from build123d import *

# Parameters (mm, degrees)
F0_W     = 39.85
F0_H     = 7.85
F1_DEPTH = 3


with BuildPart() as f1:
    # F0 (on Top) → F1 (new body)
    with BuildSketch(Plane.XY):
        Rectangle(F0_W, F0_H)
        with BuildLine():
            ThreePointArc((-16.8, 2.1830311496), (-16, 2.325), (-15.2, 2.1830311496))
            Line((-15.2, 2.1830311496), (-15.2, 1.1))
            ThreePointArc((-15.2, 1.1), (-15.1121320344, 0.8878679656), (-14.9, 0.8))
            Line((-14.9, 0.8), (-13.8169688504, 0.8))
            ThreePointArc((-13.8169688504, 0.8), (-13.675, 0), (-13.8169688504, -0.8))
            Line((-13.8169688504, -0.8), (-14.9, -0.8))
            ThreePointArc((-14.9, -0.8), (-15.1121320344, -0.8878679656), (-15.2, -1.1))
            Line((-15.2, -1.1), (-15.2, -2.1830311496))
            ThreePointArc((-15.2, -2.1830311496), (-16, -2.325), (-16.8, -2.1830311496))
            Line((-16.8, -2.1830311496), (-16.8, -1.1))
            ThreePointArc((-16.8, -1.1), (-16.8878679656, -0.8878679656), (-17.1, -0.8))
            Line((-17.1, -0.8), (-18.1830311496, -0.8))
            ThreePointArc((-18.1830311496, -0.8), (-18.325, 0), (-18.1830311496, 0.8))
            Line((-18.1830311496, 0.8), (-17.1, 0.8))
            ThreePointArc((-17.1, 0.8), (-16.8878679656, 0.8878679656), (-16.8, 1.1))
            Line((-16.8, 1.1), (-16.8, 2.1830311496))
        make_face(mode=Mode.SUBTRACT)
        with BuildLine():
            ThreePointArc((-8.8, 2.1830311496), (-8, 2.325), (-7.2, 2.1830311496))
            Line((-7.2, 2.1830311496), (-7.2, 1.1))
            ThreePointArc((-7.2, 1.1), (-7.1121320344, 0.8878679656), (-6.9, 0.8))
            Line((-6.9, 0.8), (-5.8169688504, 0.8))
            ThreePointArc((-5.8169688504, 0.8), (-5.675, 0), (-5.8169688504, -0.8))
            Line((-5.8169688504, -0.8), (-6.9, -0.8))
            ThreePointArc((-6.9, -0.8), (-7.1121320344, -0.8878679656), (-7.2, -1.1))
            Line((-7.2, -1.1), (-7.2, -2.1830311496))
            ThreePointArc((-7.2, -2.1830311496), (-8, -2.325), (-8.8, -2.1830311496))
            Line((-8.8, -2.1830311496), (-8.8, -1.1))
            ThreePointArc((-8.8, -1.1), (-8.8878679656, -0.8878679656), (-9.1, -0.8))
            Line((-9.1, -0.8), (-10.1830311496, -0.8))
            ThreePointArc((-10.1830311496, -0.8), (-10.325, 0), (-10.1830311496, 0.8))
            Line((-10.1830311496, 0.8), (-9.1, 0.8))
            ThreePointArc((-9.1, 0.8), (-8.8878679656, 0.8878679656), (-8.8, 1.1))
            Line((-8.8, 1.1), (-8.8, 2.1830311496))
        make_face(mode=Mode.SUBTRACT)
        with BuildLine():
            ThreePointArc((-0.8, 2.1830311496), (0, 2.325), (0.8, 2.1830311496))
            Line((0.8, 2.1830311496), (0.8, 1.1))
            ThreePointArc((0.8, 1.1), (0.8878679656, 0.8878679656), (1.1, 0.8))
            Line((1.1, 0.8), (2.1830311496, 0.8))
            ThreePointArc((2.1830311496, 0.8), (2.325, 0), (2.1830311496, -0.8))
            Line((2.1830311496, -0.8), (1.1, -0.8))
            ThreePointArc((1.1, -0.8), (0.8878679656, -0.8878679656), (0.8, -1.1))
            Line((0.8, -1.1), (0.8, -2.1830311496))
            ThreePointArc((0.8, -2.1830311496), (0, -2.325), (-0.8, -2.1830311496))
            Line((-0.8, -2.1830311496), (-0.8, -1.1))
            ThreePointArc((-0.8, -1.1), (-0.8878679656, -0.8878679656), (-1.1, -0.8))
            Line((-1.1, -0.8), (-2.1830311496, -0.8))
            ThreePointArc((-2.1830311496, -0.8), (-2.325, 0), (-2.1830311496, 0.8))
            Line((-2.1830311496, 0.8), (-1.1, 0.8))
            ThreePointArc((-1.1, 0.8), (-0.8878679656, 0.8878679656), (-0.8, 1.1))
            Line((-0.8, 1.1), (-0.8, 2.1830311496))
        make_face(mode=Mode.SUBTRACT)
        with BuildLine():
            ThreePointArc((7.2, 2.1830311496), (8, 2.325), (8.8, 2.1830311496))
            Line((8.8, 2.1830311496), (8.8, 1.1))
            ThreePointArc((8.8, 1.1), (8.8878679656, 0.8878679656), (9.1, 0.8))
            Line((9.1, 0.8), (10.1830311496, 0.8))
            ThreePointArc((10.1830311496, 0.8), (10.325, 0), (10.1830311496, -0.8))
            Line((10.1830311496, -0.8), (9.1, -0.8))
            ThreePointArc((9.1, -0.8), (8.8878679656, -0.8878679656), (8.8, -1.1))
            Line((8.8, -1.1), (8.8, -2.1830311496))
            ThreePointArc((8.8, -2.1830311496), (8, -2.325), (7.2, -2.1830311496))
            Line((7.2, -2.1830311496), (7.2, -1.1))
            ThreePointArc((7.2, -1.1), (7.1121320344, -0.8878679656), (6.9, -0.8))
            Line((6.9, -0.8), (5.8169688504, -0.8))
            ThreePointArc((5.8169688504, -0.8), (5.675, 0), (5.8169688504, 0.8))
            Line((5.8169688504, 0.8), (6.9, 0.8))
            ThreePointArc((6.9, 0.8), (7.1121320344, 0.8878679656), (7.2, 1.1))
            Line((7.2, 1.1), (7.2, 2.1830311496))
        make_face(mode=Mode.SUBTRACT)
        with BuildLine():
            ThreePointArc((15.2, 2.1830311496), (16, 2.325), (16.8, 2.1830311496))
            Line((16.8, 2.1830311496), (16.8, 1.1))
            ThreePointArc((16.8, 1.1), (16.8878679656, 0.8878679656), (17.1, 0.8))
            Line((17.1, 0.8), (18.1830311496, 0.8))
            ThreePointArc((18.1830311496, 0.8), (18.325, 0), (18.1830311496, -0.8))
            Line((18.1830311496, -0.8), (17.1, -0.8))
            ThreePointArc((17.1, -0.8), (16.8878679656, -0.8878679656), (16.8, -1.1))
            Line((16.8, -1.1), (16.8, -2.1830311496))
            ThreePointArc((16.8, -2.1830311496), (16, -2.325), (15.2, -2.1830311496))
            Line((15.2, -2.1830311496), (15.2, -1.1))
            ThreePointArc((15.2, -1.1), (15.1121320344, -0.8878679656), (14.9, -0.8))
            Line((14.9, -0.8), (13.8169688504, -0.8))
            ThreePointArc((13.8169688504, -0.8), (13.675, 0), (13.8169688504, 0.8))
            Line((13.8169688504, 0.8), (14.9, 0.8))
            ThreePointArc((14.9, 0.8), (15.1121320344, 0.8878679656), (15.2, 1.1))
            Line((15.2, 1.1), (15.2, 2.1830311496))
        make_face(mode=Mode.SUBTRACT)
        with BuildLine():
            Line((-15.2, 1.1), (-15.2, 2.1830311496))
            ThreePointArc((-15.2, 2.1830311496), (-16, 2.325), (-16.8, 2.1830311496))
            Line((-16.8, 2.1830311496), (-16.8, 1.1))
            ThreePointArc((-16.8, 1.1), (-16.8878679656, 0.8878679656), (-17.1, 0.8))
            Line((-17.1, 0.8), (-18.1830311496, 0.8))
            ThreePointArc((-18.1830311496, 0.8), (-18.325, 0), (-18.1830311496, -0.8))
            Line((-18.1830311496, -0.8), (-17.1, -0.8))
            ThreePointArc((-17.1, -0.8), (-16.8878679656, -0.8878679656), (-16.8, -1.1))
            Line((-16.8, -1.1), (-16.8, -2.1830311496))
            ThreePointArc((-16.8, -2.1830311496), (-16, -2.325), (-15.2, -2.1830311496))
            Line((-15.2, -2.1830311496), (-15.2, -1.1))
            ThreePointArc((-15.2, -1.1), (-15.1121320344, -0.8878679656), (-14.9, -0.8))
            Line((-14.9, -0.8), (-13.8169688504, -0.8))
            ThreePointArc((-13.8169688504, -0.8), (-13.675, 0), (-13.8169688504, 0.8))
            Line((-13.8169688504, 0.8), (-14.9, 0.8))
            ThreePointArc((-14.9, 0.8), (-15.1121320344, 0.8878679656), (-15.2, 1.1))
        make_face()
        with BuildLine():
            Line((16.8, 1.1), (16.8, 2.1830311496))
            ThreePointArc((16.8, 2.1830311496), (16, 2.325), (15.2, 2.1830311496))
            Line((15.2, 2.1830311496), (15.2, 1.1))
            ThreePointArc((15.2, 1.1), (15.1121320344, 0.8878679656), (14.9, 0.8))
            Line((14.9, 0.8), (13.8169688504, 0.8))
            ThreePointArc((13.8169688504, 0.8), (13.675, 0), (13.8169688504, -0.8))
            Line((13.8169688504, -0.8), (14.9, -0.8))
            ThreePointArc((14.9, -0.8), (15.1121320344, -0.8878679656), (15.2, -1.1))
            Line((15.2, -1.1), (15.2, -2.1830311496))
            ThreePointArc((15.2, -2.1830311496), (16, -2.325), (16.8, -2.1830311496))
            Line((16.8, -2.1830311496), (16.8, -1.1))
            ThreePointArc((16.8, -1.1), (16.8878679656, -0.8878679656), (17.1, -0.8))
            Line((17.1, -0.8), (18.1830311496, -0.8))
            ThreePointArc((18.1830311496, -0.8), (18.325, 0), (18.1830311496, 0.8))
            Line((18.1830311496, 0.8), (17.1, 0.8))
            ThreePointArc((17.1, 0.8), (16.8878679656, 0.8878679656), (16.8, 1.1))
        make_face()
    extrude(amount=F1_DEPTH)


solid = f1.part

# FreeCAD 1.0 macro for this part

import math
import FreeCAD as App
import Part
import Sketcher

V = App.Vector


def add_polygon(sketch, points):
    """Adds a closed chain of lines whose ends are joined by coincident constraints."""
    first, n = sketch.GeometryCount, len(points)
    for a, b in zip(points, points[1:] + points[:1]):
        sketch.addGeometry(Part.LineSegment(App.Vector(*a, 0), App.Vector(*b, 0)), False)
    for i in range(n):
        sketch.addConstraint(Sketcher.Constraint("Coincident", first + i, 2, first + (i + 1) % n, 1))

doc = App.newDocument("Part")
body = doc.addObject("PartDesign::Body", "Body")

sketch1 = body.newObject("Sketcher::SketchObject", "Sketch")
sketch1.AttachmentSupport = (doc.getObject("XY_Plane"), [""])
sketch1.MapMode = "FlatFace"
add_polygon(sketch1, [(-19.93, 3.92), (-19.93, -3.92), (19.93, -3.92), (19.93, 3.92)])
sketch1.addGeometry(Part.LineSegment(V(7.2, 1.1, 0), V(7.2, 2.18, 0)), False)
sketch1.addGeometry(Part.ArcOfCircle(Part.Circle(V(8, 0, 0), V(0, 0, 1), 2.33), math.radians(70), math.radians(110)), False)
sketch1.addGeometry(Part.LineSegment(V(8.8, 2.18, 0), V(8.8, 1.1, 0)), False)
sketch1.addGeometry(Part.ArcOfCircle(Part.Circle(V(9.1, 1.1, 0), V(0, 0, 1), 0.3), math.radians(180), math.radians(270)), False)
sketch1.addGeometry(Part.LineSegment(V(9.1, 0.8, 0), V(10.18, 0.8, 0)), False)
sketch1.addGeometry(Part.ArcOfCircle(Part.Circle(V(8, 0, 0), V(0, 0, 1), 2.33), math.radians(-20), math.radians(20)), False)
sketch1.addGeometry(Part.LineSegment(V(10.18, -0.8, 0), V(9.1, -0.8, 0)), False)
sketch1.addGeometry(Part.ArcOfCircle(Part.Circle(V(9.1, -1.1, 0), V(0, 0, 1), 0.3), math.radians(90), math.radians(180)), False)
sketch1.addGeometry(Part.LineSegment(V(8.8, -1.1, 0), V(8.8, -2.18, 0)), False)
sketch1.addGeometry(Part.ArcOfCircle(Part.Circle(V(8, 0, 0), V(0, 0, 1), 2.33), math.radians(-110), math.radians(-70)), False)
sketch1.addGeometry(Part.LineSegment(V(7.2, -2.18, 0), V(7.2, -1.1, 0)), False)
sketch1.addGeometry(Part.ArcOfCircle(Part.Circle(V(6.9, -1.1, 0), V(0, 0, 1), 0.3), math.radians(0), math.radians(90)), False)
sketch1.addGeometry(Part.LineSegment(V(6.9, -0.8, 0), V(5.82, -0.8, 0)), False)
sketch1.addGeometry(Part.ArcOfCircle(Part.Circle(V(8, 0, 0), V(0, 0, 1), 2.33), math.radians(160), math.radians(200)), False)
sketch1.addGeometry(Part.LineSegment(V(5.82, 0.8, 0), V(6.9, 0.8, 0)), False)
sketch1.addGeometry(Part.ArcOfCircle(Part.Circle(V(6.9, 1.1, 0), V(0, 0, 1), 0.3), math.radians(-90), math.radians(0)), False)
sketch1.addGeometry(Part.LineSegment(V(-8.8, 1.1, 0), V(-8.8, 2.18, 0)), False)
sketch1.addGeometry(Part.ArcOfCircle(Part.Circle(V(-8, 0, 0), V(0, 0, 1), 2.33), math.radians(70), math.radians(110)), False)
sketch1.addGeometry(Part.LineSegment(V(-7.2, 2.18, 0), V(-7.2, 1.1, 0)), False)
sketch1.addGeometry(Part.ArcOfCircle(Part.Circle(V(-6.9, 1.1, 0), V(0, 0, 1), 0.3), math.radians(180), math.radians(270)), False)
sketch1.addGeometry(Part.LineSegment(V(-6.9, 0.8, 0), V(-5.82, 0.8, 0)), False)
sketch1.addGeometry(Part.ArcOfCircle(Part.Circle(V(-8, 0, 0), V(0, 0, 1), 2.33), math.radians(-20), math.radians(20)), False)
sketch1.addGeometry(Part.LineSegment(V(-5.82, -0.8, 0), V(-6.9, -0.8, 0)), False)
sketch1.addGeometry(Part.ArcOfCircle(Part.Circle(V(-6.9, -1.1, 0), V(0, 0, 1), 0.3), math.radians(90), math.radians(180)), False)
sketch1.addGeometry(Part.LineSegment(V(-7.2, -1.1, 0), V(-7.2, -2.18, 0)), False)
sketch1.addGeometry(Part.ArcOfCircle(Part.Circle(V(-8, 0, 0), V(0, 0, 1), 2.33), math.radians(-110), math.radians(-70)), False)
sketch1.addGeometry(Part.LineSegment(V(-8.8, -2.18, 0), V(-8.8, -1.1, 0)), False)
sketch1.addGeometry(Part.ArcOfCircle(Part.Circle(V(-9.1, -1.1, 0), V(0, 0, 1), 0.3), math.radians(0), math.radians(90)), False)
sketch1.addGeometry(Part.LineSegment(V(-9.1, -0.8, 0), V(-10.18, -0.8, 0)), False)
sketch1.addGeometry(Part.ArcOfCircle(Part.Circle(V(-8, 0, 0), V(0, 0, 1), 2.33), math.radians(160), math.radians(200)), False)
sketch1.addGeometry(Part.LineSegment(V(-10.18, 0.8, 0), V(-9.1, 0.8, 0)), False)
sketch1.addGeometry(Part.ArcOfCircle(Part.Circle(V(-9.1, 1.1, 0), V(0, 0, 1), 0.3), math.radians(-90), math.radians(0)), False)
sketch1.addGeometry(Part.LineSegment(V(-0.8, 1.1, 0), V(-0.8, 2.18, 0)), False)
sketch1.addGeometry(Part.ArcOfCircle(Part.Circle(V(0, 0, 0), V(0, 0, 1), 2.33), math.radians(70), math.radians(110)), False)
sketch1.addGeometry(Part.LineSegment(V(0.8, 2.18, 0), V(0.8, 1.1, 0)), False)
sketch1.addGeometry(Part.ArcOfCircle(Part.Circle(V(1.1, 1.1, 0), V(0, 0, 1), 0.3), math.radians(180), math.radians(270)), False)
sketch1.addGeometry(Part.LineSegment(V(1.1, 0.8, 0), V(2.18, 0.8, 0)), False)
sketch1.addGeometry(Part.ArcOfCircle(Part.Circle(V(0, 0, 0), V(0, 0, 1), 2.33), math.radians(-20), math.radians(20)), False)
sketch1.addGeometry(Part.LineSegment(V(2.18, -0.8, 0), V(1.1, -0.8, 0)), False)
sketch1.addGeometry(Part.ArcOfCircle(Part.Circle(V(1.1, -1.1, 0), V(0, 0, 1), 0.3), math.radians(90), math.radians(180)), False)
sketch1.addGeometry(Part.LineSegment(V(0.8, -1.1, 0), V(0.8, -2.18, 0)), False)
sketch1.addGeometry(Part.ArcOfCircle(Part.Circle(V(0, 0, 0), V(0, 0, 1), 2.33), math.radians(-110), math.radians(-70)), False)
sketch1.addGeometry(Part.LineSegment(V(-0.8, -2.18, 0), V(-0.8, -1.1, 0)), False)
sketch1.addGeometry(Part.ArcOfCircle(Part.Circle(V(-1.1, -1.1, 0), V(0, 0, 1), 0.3), math.radians(0), math.radians(90)), False)
sketch1.addGeometry(Part.LineSegment(V(-1.1, -0.8, 0), V(-2.18, -0.8, 0)), False)
sketch1.addGeometry(Part.ArcOfCircle(Part.Circle(V(0, 0, 0), V(0, 0, 1), 2.33), math.radians(160), math.radians(200)), False)
sketch1.addGeometry(Part.LineSegment(V(-2.18, 0.8, 0), V(-1.1, 0.8, 0)), False)
sketch1.addGeometry(Part.ArcOfCircle(Part.Circle(V(-1.1, 1.1, 0), V(0, 0, 1), 0.3), math.radians(-90), math.radians(0)), False)
sketch1.addConstraint([
    Sketcher.Constraint("Coincident", 4, 2, 5, 2),
    Sketcher.Constraint("Coincident", 5, 1, 6, 1),
    Sketcher.Constraint("Tangent", 6, 2, 7, 1),
    Sketcher.Constraint("Tangent", 7, 2, 8, 1),
    Sketcher.Constraint("Coincident", 8, 2, 9, 2),
    Sketcher.Constraint("Coincident", 9, 1, 10, 1),
    Sketcher.Constraint("Tangent", 10, 2, 11, 1),
    Sketcher.Constraint("Tangent", 11, 2, 12, 1),
    Sketcher.Constraint("Coincident", 12, 2, 13, 2),
    Sketcher.Constraint("Coincident", 13, 1, 14, 1),
    Sketcher.Constraint("Tangent", 14, 2, 15, 1),
    Sketcher.Constraint("Tangent", 15, 2, 16, 1),
    Sketcher.Constraint("Coincident", 16, 2, 17, 2),
    Sketcher.Constraint("Coincident", 17, 1, 18, 1),
    Sketcher.Constraint("Tangent", 18, 2, 19, 1),
    Sketcher.Constraint("Tangent", 19, 2, 4, 1),
    Sketcher.Constraint("Coincident", 20, 2, 21, 2),
    Sketcher.Constraint("Coincident", 21, 1, 22, 1),
    Sketcher.Constraint("Tangent", 22, 2, 23, 1),
    Sketcher.Constraint("Tangent", 23, 2, 24, 1),
    Sketcher.Constraint("Coincident", 24, 2, 25, 2),
    Sketcher.Constraint("Coincident", 25, 1, 26, 1),
    Sketcher.Constraint("Tangent", 26, 2, 27, 1),
    Sketcher.Constraint("Tangent", 27, 2, 28, 1),
    Sketcher.Constraint("Coincident", 28, 2, 29, 2),
    Sketcher.Constraint("Coincident", 29, 1, 30, 1),
    Sketcher.Constraint("Tangent", 30, 2, 31, 1),
    Sketcher.Constraint("Tangent", 31, 2, 32, 1),
    Sketcher.Constraint("Coincident", 32, 2, 33, 2),
    Sketcher.Constraint("Coincident", 33, 1, 34, 1),
    Sketcher.Constraint("Tangent", 34, 2, 35, 1),
    Sketcher.Constraint("Tangent", 35, 2, 20, 1),
    Sketcher.Constraint("Coincident", 36, 2, 37, 2),
    Sketcher.Constraint("Coincident", 37, 1, 38, 1),
    Sketcher.Constraint("Tangent", 38, 2, 39, 1),
    Sketcher.Constraint("Tangent", 39, 2, 40, 1),
    Sketcher.Constraint("Coincident", 40, 2, 41, 2),
    Sketcher.Constraint("Coincident", 41, 1, 42, 1),
    Sketcher.Constraint("Tangent", 42, 2, 43, 1),
    Sketcher.Constraint("Tangent", 43, 2, 44, 1),
    Sketcher.Constraint("Coincident", 44, 2, 45, 2),
    Sketcher.Constraint("Coincident", 45, 1, 46, 1),
    Sketcher.Constraint("Tangent", 46, 2, 47, 1),
    Sketcher.Constraint("Tangent", 47, 2, 48, 1),
    Sketcher.Constraint("Coincident", 48, 2, 49, 2),
    Sketcher.Constraint("Coincident", 49, 1, 50, 1),
    Sketcher.Constraint("Tangent", 50, 2, 51, 1),
    Sketcher.Constraint("Tangent", 51, 2, 36, 1),
    Sketcher.Constraint("Vertical", 0),
    Sketcher.Constraint("Horizontal", 1),
    Sketcher.Constraint("Vertical", 2),
    Sketcher.Constraint("Horizontal", 3),
    Sketcher.Constraint("Vertical", 4),
    Sketcher.Constraint("Vertical", 6),
    Sketcher.Constraint("Horizontal", 8),
    Sketcher.Constraint("Horizontal", 10),
    Sketcher.Constraint("Vertical", 12),
    Sketcher.Constraint("Vertical", 14),
    Sketcher.Constraint("Horizontal", 16),
    Sketcher.Constraint("Horizontal", 18),
    Sketcher.Constraint("Vertical", 20),
    Sketcher.Constraint("Vertical", 22),
    Sketcher.Constraint("Horizontal", 24),
    Sketcher.Constraint("Horizontal", 26),
    Sketcher.Constraint("Vertical", 28),
    Sketcher.Constraint("Vertical", 30),
    Sketcher.Constraint("Horizontal", 32),
    Sketcher.Constraint("Horizontal", 34),
    Sketcher.Constraint("Vertical", 36),
    Sketcher.Constraint("Vertical", 38),
    Sketcher.Constraint("Horizontal", 40),
    Sketcher.Constraint("Horizontal", 42),
    Sketcher.Constraint("Vertical", 44),
    Sketcher.Constraint("Vertical", 46),
    Sketcher.Constraint("Horizontal", 48),
    Sketcher.Constraint("Horizontal", 50),
    Sketcher.Constraint("Coincident", 37, 3, -1, 1),
    Sketcher.Constraint("Coincident", 41, 3, -1, 1),
    Sketcher.Constraint("Coincident", 45, 3, -1, 1),
    Sketcher.Constraint("Coincident", 49, 3, -1, 1),
    Sketcher.Constraint("Coincident", 9, 3, 5, 3),
    Sketcher.Constraint("Coincident", 13, 3, 5, 3),
    Sketcher.Constraint("Coincident", 17, 3, 5, 3),
    Sketcher.Constraint("Coincident", 25, 3, 21, 3),
    Sketcher.Constraint("Coincident", 29, 3, 21, 3),
    Sketcher.Constraint("Coincident", 33, 3, 21, 3),
    Sketcher.Constraint("Equal", 5, 9),
    Sketcher.Constraint("Equal", 7, 11),
    Sketcher.Constraint("Equal", 9, 13),
    Sketcher.Constraint("Equal", 11, 15),
    Sketcher.Constraint("Equal", 13, 17),
    Sketcher.Constraint("Equal", 15, 19),
    Sketcher.Constraint("Equal", 17, 21),
    Sketcher.Constraint("Equal", 19, 23),
    Sketcher.Constraint("Equal", 21, 25),
    Sketcher.Constraint("Equal", 23, 27),
    Sketcher.Constraint("Equal", 25, 29),
    Sketcher.Constraint("Equal", 27, 31),
    Sketcher.Constraint("Equal", 29, 33),
    Sketcher.Constraint("Equal", 31, 35),
    Sketcher.Constraint("Equal", 33, 37),
    Sketcher.Constraint("Equal", 35, 39),
    Sketcher.Constraint("Equal", 37, 41),
    Sketcher.Constraint("Equal", 39, 43),
    Sketcher.Constraint("Equal", 41, 45),
    Sketcher.Constraint("Equal", 43, 47),
    Sketcher.Constraint("Equal", 45, 49),
    Sketcher.Constraint("Equal", 47, 51),
    Sketcher.Constraint("Symmetric", 5, 3, 21, 3, -1, 1),
    Sketcher.Constraint("Symmetric", 15, 3, 23, 3, -1, 1),
    Sketcher.Constraint("Symmetric", 19, 3, 27, 3, -1, 1),
    Sketcher.Constraint("Symmetric", 7, 3, 31, 3, -1, 1),
    Sketcher.Constraint("Symmetric", 11, 3, 35, 3, -1, 1),
    Sketcher.Constraint("Symmetric", 39, 3, 47, 3, -1, 1),
    Sketcher.Constraint("Symmetric", 43, 3, 51, 3, -1, 1),
    Sketcher.Constraint("Symmetric", 0, 2, 2, 2, -1, 1),
    Sketcher.Constraint("Symmetric", 19, 3, 23, 3, -2),
    Sketcher.Constraint("Symmetric", 11, 3, 31, 3, -2),
    Sketcher.Constraint("Symmetric", 43, 3, 47, 3, -2),
    Sketcher.Constraint("PointOnObject", 5, 3, -1),
    Sketcher.Constraint("Horizontal", 11, 3, 15, 3),
    Sketcher.Constraint("Horizontal", 35, 3, 39, 3),
    Sketcher.Constraint("Horizontal", 4, 2, 5, 1),
    Sketcher.Constraint("Horizontal", 21, 1, 36, 2),
    Sketcher.Constraint("Equal", 50, 4),
    Sketcher.Constraint("Radius", 7, 0.3),
    Sketcher.Constraint("DistanceX", -1, 1, 5, 3, 8.0),
    Sketcher.Constraint("Radius", 5, 2.325),
    Sketcher.Constraint("DistanceX", 1, 1, 1, 2, 39.85),
    Sketcher.Constraint("DistanceY", 0, 2, 0, 1, 7.85),
    Sketcher.Constraint("DistanceX", -1, 1, 7, 3, 9.1),
])
pad1 = body.newObject("PartDesign::Pad", "Pad")
pad1.Profile = sketch1
pad1.Length = 3

doc.recompute()
